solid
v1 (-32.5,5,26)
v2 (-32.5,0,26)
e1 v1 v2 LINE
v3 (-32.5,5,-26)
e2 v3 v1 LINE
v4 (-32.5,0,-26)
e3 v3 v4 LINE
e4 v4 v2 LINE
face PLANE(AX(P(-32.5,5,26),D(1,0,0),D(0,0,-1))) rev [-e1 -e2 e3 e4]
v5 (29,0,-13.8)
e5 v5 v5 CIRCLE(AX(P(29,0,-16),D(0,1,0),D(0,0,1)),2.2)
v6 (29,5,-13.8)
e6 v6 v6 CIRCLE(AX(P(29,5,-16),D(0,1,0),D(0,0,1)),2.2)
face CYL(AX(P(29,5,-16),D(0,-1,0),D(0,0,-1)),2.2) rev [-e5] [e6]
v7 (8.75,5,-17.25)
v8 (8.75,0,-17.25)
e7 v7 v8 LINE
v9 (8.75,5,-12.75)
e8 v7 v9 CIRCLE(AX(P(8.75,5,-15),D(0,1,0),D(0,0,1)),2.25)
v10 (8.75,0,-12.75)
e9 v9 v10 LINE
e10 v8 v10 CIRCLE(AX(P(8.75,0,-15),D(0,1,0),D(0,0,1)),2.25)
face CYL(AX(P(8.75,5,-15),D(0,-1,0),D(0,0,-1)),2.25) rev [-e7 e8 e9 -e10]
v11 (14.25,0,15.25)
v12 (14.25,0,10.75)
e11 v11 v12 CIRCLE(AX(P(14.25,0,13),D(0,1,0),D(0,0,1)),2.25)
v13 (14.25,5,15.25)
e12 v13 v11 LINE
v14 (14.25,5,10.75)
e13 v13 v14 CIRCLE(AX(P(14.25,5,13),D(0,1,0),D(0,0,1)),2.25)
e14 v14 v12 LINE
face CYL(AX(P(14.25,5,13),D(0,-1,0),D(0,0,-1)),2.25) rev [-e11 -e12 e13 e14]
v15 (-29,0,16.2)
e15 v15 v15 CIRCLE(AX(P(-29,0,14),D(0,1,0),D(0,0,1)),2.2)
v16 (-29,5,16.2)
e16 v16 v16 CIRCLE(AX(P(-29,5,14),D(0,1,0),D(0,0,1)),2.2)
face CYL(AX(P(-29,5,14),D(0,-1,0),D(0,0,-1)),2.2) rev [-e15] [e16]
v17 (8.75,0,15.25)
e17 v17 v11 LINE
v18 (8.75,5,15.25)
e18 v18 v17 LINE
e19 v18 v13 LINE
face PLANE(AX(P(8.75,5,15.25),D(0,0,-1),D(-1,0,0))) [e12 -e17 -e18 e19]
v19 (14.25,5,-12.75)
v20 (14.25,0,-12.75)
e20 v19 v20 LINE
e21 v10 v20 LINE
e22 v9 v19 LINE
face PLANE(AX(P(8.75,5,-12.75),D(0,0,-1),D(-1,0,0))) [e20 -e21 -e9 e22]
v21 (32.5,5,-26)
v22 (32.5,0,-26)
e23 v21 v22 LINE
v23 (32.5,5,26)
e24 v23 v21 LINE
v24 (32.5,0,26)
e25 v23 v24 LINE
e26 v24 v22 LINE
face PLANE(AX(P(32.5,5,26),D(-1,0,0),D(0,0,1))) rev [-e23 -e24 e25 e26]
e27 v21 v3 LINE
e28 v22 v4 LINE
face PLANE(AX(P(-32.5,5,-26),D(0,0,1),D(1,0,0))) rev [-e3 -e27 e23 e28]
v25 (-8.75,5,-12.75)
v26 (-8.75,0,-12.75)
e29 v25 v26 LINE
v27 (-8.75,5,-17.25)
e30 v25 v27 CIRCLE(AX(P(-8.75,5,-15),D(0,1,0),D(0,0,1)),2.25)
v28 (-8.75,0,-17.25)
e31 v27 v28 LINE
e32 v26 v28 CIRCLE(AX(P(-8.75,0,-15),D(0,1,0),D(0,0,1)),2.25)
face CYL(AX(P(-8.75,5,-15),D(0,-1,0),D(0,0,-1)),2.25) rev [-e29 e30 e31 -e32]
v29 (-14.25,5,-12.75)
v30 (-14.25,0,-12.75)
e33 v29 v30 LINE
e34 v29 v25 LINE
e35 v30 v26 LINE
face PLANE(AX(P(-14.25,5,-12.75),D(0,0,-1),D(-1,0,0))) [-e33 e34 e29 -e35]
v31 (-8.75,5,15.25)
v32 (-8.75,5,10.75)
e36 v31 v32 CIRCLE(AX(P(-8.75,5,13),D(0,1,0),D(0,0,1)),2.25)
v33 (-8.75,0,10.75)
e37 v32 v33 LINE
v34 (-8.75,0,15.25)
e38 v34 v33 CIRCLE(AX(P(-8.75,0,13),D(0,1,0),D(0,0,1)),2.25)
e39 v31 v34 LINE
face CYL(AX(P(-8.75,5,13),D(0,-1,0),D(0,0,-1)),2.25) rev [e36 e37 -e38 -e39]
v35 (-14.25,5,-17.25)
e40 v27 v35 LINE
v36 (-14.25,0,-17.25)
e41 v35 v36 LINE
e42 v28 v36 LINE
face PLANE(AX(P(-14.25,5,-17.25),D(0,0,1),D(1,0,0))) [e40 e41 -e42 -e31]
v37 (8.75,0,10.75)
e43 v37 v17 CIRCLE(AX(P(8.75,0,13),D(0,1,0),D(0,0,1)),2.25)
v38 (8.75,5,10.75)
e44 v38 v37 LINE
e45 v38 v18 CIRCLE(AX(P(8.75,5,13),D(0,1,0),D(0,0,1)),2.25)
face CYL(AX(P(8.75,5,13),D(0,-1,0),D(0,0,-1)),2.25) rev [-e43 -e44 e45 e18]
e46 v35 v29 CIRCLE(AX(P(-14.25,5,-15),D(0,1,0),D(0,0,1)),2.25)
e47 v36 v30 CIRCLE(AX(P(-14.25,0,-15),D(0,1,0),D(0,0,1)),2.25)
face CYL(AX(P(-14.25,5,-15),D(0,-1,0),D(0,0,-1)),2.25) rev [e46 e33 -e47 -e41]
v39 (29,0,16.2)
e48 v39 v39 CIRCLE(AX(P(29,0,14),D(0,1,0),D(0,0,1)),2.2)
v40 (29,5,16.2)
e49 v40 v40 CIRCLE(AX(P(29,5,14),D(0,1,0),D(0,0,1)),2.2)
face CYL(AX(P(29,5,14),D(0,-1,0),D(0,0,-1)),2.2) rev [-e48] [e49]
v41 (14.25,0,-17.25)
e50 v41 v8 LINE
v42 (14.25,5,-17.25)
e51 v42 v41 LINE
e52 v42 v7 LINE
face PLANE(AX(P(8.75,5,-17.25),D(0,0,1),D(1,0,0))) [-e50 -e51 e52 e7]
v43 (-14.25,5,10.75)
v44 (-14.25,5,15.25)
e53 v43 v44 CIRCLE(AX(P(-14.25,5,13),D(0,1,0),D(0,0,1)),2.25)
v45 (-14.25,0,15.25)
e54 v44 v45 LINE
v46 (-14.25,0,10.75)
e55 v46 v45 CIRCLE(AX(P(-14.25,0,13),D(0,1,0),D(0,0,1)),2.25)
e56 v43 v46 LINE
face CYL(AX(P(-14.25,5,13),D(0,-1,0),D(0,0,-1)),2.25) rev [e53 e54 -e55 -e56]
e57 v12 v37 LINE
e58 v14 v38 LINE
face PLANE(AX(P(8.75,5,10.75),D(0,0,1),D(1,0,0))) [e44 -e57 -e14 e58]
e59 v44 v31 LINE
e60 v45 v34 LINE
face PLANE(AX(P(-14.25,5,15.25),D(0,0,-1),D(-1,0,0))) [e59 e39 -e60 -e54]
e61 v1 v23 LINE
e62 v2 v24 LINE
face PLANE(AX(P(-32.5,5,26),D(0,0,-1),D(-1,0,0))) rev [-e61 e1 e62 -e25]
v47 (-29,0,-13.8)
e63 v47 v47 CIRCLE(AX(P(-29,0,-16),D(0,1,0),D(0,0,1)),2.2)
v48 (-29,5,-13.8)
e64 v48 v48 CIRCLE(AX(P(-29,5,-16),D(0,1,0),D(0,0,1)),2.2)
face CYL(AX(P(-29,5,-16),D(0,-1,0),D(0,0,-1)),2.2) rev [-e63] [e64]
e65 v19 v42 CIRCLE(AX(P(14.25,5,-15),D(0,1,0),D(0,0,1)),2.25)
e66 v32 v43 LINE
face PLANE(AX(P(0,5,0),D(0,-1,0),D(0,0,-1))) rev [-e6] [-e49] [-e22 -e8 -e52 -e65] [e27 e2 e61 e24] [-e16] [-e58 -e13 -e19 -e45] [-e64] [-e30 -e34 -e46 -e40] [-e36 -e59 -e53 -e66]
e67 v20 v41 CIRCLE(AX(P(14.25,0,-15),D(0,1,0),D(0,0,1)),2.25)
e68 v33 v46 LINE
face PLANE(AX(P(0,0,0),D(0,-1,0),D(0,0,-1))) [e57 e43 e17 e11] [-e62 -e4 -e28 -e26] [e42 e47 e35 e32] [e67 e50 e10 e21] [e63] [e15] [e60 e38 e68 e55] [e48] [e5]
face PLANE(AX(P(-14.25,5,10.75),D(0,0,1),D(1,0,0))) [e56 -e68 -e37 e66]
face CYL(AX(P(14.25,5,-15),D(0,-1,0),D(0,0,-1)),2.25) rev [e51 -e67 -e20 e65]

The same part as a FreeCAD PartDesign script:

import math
import FreeCAD as App
import Part
import Sketcher
Q = App.Units.Quantity


def add_polygon(sketch, points):
    """Adds a closed chain of lines whose ends are joined by coincident constraints."""
    first, n = sketch.GeometryCount, len(points)
    for a, b in zip(points, points[1:] + points[:1]):
        sketch.addGeometry(Part.LineSegment(App.Vector(*a, 0), App.Vector(*b, 0)), False)
    for i in range(n):
        sketch.addConstraint(Sketcher.Constraint("Coincident", first + i, 2, first + (i + 1) % n, 1))

doc = App.newDocument("Part")
body = doc.addObject("PartDesign::Body", "Body")

sketch1 = doc.addObject("Sketcher::SketchObject", "Sketch")
body.addObject(sketch1)
sketch1.AttachmentSupport = (doc.XZ_Plane, [""])
sketch1.MapMode = "FlatFace"
add_polygon(sketch1, [(-32.5, -26), (-32.5, 26), (32.5, 26), (32.5, -26)])
sketch1.addGeometry(Part.Circle(App.Vector(-29, 14, 0), App.Vector(0, 0, 1), 2.2), False)
sketch1.addGeometry(Part.ArcOfCircle(Part.Circle(App.Vector(-14.25, 13, 0), App.Vector(0, 0, 1), 2.25), math.radians(90), math.radians(270)), False)
sketch1.addGeometry(Part.LineSegment(App.Vector(-14.25, 10.75, 0), App.Vector(-8.75, 10.75, 0)), False)
sketch1.addGeometry(Part.ArcOfCircle(Part.Circle(App.Vector(-8.75, 13, 0), App.Vector(0, 0, 1), 2.25), math.radians(-90), math.radians(90)), False)
sketch1.addGeometry(Part.LineSegment(App.Vector(-8.75, 15.25, 0), App.Vector(-14.25, 15.25, 0)), False)
sketch1.addGeometry(Part.ArcOfCircle(Part.Circle(App.Vector(8.75, 13, 0), App.Vector(0, 0, 1), 2.25), math.radians(90), math.radians(270)), False)
sketch1.addGeometry(Part.LineSegment(App.Vector(8.75, 10.75, 0), App.Vector(14.25, 10.75, 0)), False)
sketch1.addGeometry(Part.ArcOfCircle(Part.Circle(App.Vector(14.25, 13, 0), App.Vector(0, 0, 1), 2.25), math.radians(-90), math.radians(90)), False)
sketch1.addGeometry(Part.LineSegment(App.Vector(14.25, 15.25, 0), App.Vector(8.75, 15.25, 0)), False)
sketch1.addGeometry(Part.Circle(App.Vector(29, 14, 0), App.Vector(0, 0, 1), 2.2), False)
sketch1.addGeometry(Part.Circle(App.Vector(-29, -16, 0), App.Vector(0, 0, 1), 2.2), False)
sketch1.addGeometry(Part.ArcOfCircle(Part.Circle(App.Vector(-14.25, -15, 0), App.Vector(0, 0, 1), 2.25), math.radians(90), math.radians(270)), False)
sketch1.addGeometry(Part.LineSegment(App.Vector(-14.25, -17.25, 0), App.Vector(-8.75, -17.25, 0)), False)
sketch1.addGeometry(Part.ArcOfCircle(Part.Circle(App.Vector(-8.75, -15, 0), App.Vector(0, 0, 1), 2.25), math.radians(-90), math.radians(90)), False)
sketch1.addGeometry(Part.LineSegment(App.Vector(-8.75, -12.75, 0), App.Vector(-14.25, -12.75, 0)), False)
sketch1.addGeometry(Part.ArcOfCircle(Part.Circle(App.Vector(8.75, -15, 0), App.Vector(0, 0, 1), 2.25), math.radians(90), math.radians(270)), False)
sketch1.addGeometry(Part.LineSegment(App.Vector(8.75, -17.25, 0), App.Vector(14.25, -17.25, 0)), False)
sketch1.addGeometry(Part.ArcOfCircle(Part.Circle(App.Vector(14.25, -15, 0), App.Vector(0, 0, 1), 2.25), math.radians(-90), math.radians(90)), False)
sketch1.addGeometry(Part.LineSegment(App.Vector(14.25, -12.75, 0), App.Vector(8.75, -12.75, 0)), False)
sketch1.addGeometry(Part.Circle(App.Vector(29, -16, 0), App.Vector(0, 0, 1), 2.2), False)
sketch1.addConstraint(Sketcher.Constraint("Tangent", 5, 2, 6, 1))
sketch1.addConstraint(Sketcher.Constraint("Tangent", 6, 2, 7, 1))
sketch1.addConstraint(Sketcher.Constraint("Tangent", 7, 2, 8, 1))
sketch1.addConstraint(Sketcher.Constraint("Tangent", 8, 2, 5, 1))
sketch1.addConstraint(Sketcher.Constraint("Tangent", 9, 2, 10, 1))
sketch1.addConstraint(Sketcher.Constraint("Tangent", 10, 2, 11, 1))
sketch1.addConstraint(Sketcher.Constraint("Tangent", 11, 2, 12, 1))
sketch1.addConstraint(Sketcher.Constraint("Tangent", 12, 2, 9, 1))
sketch1.addConstraint(Sketcher.Constraint("Tangent", 15, 2, 16, 1))
sketch1.addConstraint(Sketcher.Constraint("Tangent", 16, 2, 17, 1))
sketch1.addConstraint(Sketcher.Constraint("Tangent", 17, 2, 18, 1))
sketch1.addConstraint(Sketcher.Constraint("Tangent", 18, 2, 15, 1))
sketch1.addConstraint(Sketcher.Constraint("Tangent", 19, 2, 20, 1))
sketch1.addConstraint(Sketcher.Constraint("Tangent", 20, 2, 21, 1))
sketch1.addConstraint(Sketcher.Constraint("Tangent", 21, 2, 22, 1))
sketch1.addConstraint(Sketcher.Constraint("Tangent", 22, 2, 19, 1))
sketch1.addConstraint(Sketcher.Constraint("Vertical", 0))
sketch1.addConstraint(Sketcher.Constraint("Horizontal", 1))
sketch1.addConstraint(Sketcher.Constraint("Vertical", 2))
sketch1.addConstraint(Sketcher.Constraint("Horizontal", 3))
sketch1.addConstraint(Sketcher.Constraint("Horizontal", 6))
sketch1.addConstraint(Sketcher.Constraint("Horizontal", 8))
sketch1.addConstraint(Sketcher.Constraint("Horizontal", 10))
sketch1.addConstraint(Sketcher.Constraint("Horizontal", 12))
sketch1.addConstraint(Sketcher.Constraint("Horizontal", 16))
sketch1.addConstraint(Sketcher.Constraint("Horizontal", 18))
sketch1.addConstraint(Sketcher.Constraint("Horizontal", 20))
sketch1.addConstraint(Sketcher.Constraint("Horizontal", 22))
sketch1.addConstraint(Sketcher.Constraint("Equal", 7, 9))
sketch1.addConstraint(Sketcher.Constraint("Equal", 4, 13))
sketch1.addConstraint(Sketcher.Constraint("Equal", 13, 14))
sketch1.addConstraint(Sketcher.Constraint("Equal", 11, 15))
sketch1.addConstraint(Sketcher.Constraint("Equal", 17, 19))
sketch1.addConstraint(Sketcher.Constraint("Equal", 14, 23))
sketch1.addConstraint(Sketcher.Constraint("Symmetric", 0, 2, 2, 2, -1, 1))
sketch1.addConstraint(Sketcher.Constraint("Symmetric", 7, 3, 9, 3, -2))
sketch1.addConstraint(Sketcher.Constraint("Symmetric", 4, 3, 13, 3, -2))
sketch1.addConstraint(Sketcher.Constraint("Symmetric", 17, 3, 19, 3, -2))
sketch1.addConstraint(Sketcher.Constraint("Symmetric", 14, 3, 23, 3, -2))
sketch1.addConstraint(Sketcher.Constraint("Vertical", 4, 3, 14, 3))
sketch1.addConstraint(Sketcher.Constraint("Vertical", 5, 3, 15, 3))
sketch1.addConstraint(Sketcher.Constraint("Vertical", 7, 3, 17, 3))
sketch1.addConstraint(Sketcher.Constraint("Vertical", 11, 3, 21, 3))
sketch1.addConstraint(Sketcher.Constraint("Equal", 8, 10))
sketch1.addConstraint(Sketcher.Constraint("Diameter", 4, Q("4.4 mm")))
sketch1.addConstraint(Sketcher.Constraint("DistanceX", 1, 1, 1, 2, Q("65 mm")))
sketch1.addConstraint(Sketcher.Constraint("DistanceY", 0, 1, 0, 2, Q("52 mm")))
sketch1.addConstraint(Sketcher.Constraint("Radius", 5, Q("2.25 mm")))
sketch1.addConstraint(Sketcher.Constraint("DistanceX", 6, 1, 6, 2, Q("5.5 mm")))
sketch1.addConstraint(Sketcher.Constraint("DistanceX", 4, 3, -1, 1, Q("29 mm")))
sketch1.addConstraint(Sketcher.Constraint("DistanceY", -1, 1, 4, 3, Q("14 mm")))
sketch1.addConstraint(Sketcher.Constraint("DistanceY", -1, 1, 5, 3, Q("13 mm")))
sketch1.addConstraint(Sketcher.Constraint("DistanceY", 14, 3, -1, 1, Q("16 mm")))
sketch1.addConstraint(Sketcher.Constraint("DistanceY", 15, 3, -1, 1, Q("15 mm")))
sketch1.addConstraint(Sketcher.Constraint("DistanceX", 5, 3, 9, 3, Q("23 mm")))
pad1 = doc.addObject("PartDesign::Pad", "Pad")
body.addObject(pad1)
pad1.Profile = sketch1
pad1.Length = 5
pad1.Reversed = True

doc.recompute()
